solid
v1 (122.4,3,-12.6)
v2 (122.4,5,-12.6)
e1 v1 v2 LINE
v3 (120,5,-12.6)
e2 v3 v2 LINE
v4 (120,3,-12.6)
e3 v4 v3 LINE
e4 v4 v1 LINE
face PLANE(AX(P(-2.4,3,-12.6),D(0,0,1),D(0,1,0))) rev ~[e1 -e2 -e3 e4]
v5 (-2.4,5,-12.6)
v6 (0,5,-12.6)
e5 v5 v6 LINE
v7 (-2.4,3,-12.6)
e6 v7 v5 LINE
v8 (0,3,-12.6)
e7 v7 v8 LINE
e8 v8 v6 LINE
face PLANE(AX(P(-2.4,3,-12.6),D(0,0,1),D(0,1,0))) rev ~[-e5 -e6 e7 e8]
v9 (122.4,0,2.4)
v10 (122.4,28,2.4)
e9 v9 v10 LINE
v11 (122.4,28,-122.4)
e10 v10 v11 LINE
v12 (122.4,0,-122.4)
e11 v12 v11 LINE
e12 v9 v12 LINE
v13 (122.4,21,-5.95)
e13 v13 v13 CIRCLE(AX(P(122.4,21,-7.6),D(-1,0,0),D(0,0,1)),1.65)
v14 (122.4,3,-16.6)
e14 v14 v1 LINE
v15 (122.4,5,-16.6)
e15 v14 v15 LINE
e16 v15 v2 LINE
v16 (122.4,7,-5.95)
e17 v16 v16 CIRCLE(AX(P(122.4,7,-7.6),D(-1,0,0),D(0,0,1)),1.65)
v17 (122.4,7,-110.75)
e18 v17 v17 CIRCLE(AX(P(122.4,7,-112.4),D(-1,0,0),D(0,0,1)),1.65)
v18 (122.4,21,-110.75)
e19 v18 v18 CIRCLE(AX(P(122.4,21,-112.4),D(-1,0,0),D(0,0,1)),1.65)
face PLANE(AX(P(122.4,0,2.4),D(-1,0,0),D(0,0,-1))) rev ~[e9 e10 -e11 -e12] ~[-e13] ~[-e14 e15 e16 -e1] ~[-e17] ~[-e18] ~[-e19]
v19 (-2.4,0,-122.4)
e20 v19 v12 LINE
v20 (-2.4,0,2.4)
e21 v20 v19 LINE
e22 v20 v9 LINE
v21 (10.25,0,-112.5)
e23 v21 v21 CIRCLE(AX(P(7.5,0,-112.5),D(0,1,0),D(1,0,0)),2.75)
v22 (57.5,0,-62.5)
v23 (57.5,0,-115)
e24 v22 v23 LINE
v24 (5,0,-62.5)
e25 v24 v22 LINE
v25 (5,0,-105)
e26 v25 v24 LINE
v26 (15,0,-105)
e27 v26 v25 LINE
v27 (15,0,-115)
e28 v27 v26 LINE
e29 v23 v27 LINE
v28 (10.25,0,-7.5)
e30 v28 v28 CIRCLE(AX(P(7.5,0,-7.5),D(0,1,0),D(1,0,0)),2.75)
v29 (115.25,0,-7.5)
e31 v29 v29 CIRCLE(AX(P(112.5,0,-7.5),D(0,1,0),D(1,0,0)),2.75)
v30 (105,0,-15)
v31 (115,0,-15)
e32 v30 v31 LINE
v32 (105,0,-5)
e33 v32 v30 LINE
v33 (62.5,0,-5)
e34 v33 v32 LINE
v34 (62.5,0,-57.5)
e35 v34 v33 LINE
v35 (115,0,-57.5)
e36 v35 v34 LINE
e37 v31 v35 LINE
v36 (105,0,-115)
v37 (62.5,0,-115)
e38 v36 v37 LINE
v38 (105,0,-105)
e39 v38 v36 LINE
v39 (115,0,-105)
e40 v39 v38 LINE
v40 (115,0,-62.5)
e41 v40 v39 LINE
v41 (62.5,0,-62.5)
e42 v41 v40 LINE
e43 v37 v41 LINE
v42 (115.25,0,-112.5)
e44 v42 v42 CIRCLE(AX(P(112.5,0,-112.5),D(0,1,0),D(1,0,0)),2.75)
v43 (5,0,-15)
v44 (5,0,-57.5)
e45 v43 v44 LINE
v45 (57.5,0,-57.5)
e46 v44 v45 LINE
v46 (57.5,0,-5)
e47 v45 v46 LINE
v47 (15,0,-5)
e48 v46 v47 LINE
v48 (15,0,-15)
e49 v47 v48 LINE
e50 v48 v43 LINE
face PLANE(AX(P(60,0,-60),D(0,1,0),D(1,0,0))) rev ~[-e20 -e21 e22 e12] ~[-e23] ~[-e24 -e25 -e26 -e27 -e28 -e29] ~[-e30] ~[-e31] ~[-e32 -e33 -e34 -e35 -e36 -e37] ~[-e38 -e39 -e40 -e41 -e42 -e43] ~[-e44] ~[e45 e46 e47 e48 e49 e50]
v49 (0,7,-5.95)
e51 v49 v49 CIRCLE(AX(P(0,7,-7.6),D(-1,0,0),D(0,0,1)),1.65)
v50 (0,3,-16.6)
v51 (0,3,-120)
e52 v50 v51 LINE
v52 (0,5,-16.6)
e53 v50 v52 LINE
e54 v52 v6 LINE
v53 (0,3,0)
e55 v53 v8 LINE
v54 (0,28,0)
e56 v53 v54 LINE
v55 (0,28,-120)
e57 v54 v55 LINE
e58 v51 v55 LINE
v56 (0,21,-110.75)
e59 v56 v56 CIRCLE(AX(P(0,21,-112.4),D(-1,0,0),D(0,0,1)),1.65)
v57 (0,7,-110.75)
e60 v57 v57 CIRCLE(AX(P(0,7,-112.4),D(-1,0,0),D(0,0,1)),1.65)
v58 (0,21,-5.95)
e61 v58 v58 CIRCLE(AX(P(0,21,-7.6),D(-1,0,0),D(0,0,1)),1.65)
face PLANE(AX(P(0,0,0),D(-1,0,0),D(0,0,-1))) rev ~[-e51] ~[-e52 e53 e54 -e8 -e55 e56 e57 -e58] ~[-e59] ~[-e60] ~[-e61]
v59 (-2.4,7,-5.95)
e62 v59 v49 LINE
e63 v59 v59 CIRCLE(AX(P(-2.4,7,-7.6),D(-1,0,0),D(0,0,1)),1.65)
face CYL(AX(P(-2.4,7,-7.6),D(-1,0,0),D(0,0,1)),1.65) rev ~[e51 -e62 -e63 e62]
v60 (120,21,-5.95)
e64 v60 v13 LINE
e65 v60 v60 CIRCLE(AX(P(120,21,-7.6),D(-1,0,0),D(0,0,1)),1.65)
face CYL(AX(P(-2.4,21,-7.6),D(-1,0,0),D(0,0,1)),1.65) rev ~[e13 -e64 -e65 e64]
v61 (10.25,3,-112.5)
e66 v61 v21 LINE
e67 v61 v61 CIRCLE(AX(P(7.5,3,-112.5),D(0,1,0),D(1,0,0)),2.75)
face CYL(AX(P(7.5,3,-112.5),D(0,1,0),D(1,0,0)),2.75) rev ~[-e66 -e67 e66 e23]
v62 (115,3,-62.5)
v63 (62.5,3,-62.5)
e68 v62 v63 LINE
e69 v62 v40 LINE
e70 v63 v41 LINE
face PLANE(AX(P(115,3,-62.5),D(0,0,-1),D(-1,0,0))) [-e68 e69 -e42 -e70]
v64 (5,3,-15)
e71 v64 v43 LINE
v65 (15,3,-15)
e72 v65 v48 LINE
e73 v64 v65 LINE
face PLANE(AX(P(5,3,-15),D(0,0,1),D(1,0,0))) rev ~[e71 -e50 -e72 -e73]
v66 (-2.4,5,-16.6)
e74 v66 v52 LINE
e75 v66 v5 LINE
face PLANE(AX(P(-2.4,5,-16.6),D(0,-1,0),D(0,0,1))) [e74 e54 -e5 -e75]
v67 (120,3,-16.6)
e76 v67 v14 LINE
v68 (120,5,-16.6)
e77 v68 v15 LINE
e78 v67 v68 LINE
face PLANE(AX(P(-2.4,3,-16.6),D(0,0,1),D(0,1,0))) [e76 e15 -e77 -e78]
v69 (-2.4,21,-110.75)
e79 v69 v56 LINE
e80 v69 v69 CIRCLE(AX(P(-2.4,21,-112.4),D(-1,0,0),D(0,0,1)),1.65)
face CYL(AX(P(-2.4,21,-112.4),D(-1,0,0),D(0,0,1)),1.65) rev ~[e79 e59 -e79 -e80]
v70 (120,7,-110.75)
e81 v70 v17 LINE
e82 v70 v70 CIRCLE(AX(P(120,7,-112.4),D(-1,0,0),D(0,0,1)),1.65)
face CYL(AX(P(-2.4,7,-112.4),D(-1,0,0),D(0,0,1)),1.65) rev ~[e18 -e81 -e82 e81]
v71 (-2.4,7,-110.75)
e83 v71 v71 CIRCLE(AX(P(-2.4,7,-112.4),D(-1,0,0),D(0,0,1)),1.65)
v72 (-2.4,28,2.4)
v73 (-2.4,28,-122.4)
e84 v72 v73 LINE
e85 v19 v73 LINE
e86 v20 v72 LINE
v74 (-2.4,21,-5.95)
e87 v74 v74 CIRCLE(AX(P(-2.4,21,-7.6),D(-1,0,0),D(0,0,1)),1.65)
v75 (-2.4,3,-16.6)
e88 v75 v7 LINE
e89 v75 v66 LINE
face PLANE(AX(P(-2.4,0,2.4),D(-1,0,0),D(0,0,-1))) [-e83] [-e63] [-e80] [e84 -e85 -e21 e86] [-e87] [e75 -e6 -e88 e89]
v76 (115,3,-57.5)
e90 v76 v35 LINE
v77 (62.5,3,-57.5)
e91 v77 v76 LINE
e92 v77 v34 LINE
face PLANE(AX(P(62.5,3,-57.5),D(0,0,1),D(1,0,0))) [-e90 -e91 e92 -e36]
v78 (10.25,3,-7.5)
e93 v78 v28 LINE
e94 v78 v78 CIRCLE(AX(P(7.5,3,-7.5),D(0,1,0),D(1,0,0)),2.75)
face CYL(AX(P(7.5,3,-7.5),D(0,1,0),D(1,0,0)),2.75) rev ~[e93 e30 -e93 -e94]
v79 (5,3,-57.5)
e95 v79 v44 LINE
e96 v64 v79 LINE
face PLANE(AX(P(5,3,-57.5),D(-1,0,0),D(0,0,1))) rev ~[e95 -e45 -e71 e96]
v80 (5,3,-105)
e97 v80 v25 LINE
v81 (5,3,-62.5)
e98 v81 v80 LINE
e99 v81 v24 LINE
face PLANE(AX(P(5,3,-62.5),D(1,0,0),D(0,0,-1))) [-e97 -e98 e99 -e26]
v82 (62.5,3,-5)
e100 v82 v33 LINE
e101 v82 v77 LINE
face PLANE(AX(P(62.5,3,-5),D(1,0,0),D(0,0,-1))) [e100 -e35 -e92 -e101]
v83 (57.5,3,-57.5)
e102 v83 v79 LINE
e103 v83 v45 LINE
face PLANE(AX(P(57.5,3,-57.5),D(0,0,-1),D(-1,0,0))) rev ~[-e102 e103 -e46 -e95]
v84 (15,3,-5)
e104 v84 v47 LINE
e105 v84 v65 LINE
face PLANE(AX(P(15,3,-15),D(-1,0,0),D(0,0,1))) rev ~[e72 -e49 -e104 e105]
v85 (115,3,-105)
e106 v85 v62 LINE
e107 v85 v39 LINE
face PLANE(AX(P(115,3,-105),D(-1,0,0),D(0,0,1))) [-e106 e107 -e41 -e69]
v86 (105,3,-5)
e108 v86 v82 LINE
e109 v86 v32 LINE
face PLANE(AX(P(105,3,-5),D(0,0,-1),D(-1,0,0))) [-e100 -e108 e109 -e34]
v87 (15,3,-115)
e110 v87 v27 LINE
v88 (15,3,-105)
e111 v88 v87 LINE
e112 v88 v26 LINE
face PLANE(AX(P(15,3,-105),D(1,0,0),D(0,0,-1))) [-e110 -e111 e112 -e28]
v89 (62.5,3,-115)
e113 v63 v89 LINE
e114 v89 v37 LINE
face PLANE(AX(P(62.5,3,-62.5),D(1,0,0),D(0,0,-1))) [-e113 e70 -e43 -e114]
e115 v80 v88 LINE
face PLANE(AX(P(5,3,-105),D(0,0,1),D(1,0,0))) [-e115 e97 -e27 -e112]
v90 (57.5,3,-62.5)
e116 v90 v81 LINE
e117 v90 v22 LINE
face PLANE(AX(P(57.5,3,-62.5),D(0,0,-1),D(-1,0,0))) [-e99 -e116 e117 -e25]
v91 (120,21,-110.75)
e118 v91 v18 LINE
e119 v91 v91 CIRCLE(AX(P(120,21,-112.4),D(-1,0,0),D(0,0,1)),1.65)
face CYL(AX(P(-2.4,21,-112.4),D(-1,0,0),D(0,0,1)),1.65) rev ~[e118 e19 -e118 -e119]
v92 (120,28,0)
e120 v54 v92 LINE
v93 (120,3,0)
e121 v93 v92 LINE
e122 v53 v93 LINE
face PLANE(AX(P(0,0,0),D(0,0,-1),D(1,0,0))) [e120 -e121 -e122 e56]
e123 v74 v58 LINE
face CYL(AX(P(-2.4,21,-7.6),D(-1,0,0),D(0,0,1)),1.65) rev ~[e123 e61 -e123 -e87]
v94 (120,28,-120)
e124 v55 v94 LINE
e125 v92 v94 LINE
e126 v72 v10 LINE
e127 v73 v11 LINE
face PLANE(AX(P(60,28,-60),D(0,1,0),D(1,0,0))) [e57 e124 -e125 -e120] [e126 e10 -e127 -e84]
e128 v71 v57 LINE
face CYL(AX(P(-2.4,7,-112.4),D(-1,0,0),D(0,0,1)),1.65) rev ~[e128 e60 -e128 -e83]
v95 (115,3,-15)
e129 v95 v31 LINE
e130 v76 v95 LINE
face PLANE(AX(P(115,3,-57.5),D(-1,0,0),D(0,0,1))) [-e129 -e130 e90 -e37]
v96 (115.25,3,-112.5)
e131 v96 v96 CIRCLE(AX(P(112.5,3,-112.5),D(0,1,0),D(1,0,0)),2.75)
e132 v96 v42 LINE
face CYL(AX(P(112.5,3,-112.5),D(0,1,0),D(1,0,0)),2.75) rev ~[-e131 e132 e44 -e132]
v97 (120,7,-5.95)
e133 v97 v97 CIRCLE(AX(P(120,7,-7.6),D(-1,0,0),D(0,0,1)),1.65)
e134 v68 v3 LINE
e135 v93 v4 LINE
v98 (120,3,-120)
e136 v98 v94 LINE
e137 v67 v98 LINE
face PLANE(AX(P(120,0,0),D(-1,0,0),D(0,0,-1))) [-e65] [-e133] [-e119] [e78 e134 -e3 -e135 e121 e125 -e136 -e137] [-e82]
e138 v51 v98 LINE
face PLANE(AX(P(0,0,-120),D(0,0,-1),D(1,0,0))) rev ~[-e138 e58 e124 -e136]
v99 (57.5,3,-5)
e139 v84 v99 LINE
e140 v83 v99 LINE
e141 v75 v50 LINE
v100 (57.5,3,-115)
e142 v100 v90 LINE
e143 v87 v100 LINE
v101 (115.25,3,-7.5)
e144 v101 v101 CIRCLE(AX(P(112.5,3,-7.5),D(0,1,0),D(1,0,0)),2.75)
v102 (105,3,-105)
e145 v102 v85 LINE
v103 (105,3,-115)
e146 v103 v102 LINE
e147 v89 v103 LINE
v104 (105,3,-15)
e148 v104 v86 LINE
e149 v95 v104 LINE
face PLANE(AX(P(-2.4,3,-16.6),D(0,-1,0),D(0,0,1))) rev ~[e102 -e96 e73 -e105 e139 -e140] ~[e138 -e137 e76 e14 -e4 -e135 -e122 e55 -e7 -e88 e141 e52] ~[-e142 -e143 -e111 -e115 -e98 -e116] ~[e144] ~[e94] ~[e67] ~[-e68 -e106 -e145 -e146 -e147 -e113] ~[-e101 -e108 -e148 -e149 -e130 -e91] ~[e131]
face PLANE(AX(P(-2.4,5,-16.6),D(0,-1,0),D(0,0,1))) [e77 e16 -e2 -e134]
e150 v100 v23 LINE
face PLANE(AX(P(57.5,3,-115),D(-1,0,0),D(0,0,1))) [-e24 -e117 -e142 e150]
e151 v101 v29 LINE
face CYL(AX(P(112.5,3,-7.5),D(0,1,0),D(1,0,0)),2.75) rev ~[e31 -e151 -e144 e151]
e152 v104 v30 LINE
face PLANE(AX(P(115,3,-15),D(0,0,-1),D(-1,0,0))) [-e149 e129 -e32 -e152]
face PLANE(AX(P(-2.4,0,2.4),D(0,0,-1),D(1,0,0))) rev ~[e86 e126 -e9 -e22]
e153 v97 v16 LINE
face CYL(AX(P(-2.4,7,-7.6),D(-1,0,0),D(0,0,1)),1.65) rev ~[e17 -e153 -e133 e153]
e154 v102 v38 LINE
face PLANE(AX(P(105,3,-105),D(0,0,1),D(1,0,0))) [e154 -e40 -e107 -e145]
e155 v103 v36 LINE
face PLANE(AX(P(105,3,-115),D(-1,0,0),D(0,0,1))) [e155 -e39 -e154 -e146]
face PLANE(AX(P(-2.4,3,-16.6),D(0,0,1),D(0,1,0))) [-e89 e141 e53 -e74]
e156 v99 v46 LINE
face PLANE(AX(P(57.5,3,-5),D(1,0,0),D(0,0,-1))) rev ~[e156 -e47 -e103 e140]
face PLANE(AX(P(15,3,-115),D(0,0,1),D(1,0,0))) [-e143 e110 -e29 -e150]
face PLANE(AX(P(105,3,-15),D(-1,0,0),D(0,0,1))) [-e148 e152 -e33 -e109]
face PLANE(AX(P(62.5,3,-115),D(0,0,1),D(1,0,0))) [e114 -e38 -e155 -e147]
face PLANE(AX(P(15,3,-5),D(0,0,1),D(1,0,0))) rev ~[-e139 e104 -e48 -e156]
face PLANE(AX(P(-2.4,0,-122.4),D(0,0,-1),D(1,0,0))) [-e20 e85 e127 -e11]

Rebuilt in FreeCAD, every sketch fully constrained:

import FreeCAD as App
import Part
import Sketcher

V = App.Vector

doc = App.newDocument("Part")
body = doc.addObject("PartDesign::Body", "Body")

# Sketch on XZ plane
sketch1 = body.newObject("Sketcher::SketchObject", "Sketch")
sketch1.AttachmentSupport = (doc.getObject("XZ_Plane"), [""])
sketch1.MapMode = "FlatFace"
sketch1.addGeometry([
    Part.LineSegment(V(0, -120, 0), V(0, 0, 0)),
    Part.LineSegment(V(0, 0, 0), V(120, 0, 0)),
    Part.LineSegment(V(120, 0, 0), V(120, -120, 0)),
    Part.LineSegment(V(120, -120, 0), V(0, -120, 0)),
], False)
sketch1.addConstraint([
    Sketcher.Constraint("Coincident", 0, 2, 1, 1),
    Sketcher.Constraint("Coincident", 1, 2, 2, 1),
    Sketcher.Constraint("Coincident", 2, 2, 3, 1),
    Sketcher.Constraint("Coincident", 3, 2, 0, 1),
    Sketcher.Constraint("Vertical", 0),
    Sketcher.Constraint("Horizontal", 1),
    Sketcher.Constraint("Vertical", 2),
    Sketcher.Constraint("Horizontal", 3),
    Sketcher.Constraint("Coincident", 0, 2, -1, 1),
    Sketcher.Constraint("Equal", 3, 0),
    Sketcher.Constraint("DistanceX", 1, 1, 1, 2, 120.0),
])
pad1 = body.newObject("PartDesign::Pad", "Pad")
pad1.Profile = sketch1
pad1.Length = 3
pad1.Reversed = True

# Sketch on XZ plane
sketch2 = body.newObject("Sketcher::SketchObject", "Sketch001")
sketch2.AttachmentSupport = (doc.getObject("XZ_Plane"), [""])
sketch2.MapMode = "FlatFace"
sketch2.AttachmentOffset = App.Placement(V(0, 0, -3), App.Rotation())
sketch2.addGeometry([
    Part.LineSegment(V(57.5, -115, 0), V(15, -115, 0)),  # 0
    Part.LineSegment(V(15, -115, 0), V(15, -105, 0)),  # 1
    Part.LineSegment(V(15, -105, 0), V(5, -105, 0)),  # 2
    Part.LineSegment(V(5, -105, 0), V(5, -62.5, 0)),  # 3
    Part.LineSegment(V(5, -62.5, 0), V(57.5, -62.5, 0)),  # 4
    Part.LineSegment(V(57.5, -62.5, 0), V(57.5, -115, 0)),  # 5
], False)
sketch2.addConstraint([
    Sketcher.Constraint("Coincident", 0, 2, 1, 1),
    Sketcher.Constraint("Coincident", 1, 2, 2, 1),
    Sketcher.Constraint("Coincident", 2, 2, 3, 1),
    Sketcher.Constraint("Coincident", 3, 2, 4, 1),
    Sketcher.Constraint("Coincident", 4, 2, 5, 1),
    Sketcher.Constraint("Coincident", 5, 2, 0, 1),
    Sketcher.Constraint("Horizontal", 0),
    Sketcher.Constraint("Vertical", 1),
    Sketcher.Constraint("Horizontal", 2),
    Sketcher.Constraint("Vertical", 3),
    Sketcher.Constraint("Horizontal", 4),
    Sketcher.Constraint("Vertical", 5),
    Sketcher.Constraint("Equal", 2, 1),
    Sketcher.Constraint("Equal", 0, 3),
    Sketcher.Constraint("DistanceX", 2, 2, 2, 1, 10.0),
    Sketcher.Constraint("DistanceX", 0, 2, 0, 1, 42.5),
    Sketcher.Constraint("DistanceX", -1, 1, 0, 2, 15.0),
    Sketcher.Constraint("DistanceY", 0, 2, -1, 1, 115.0),
])
pocket1 = body.newObject("PartDesign::Pocket", "Pocket")
pocket1.Profile = sketch2
pocket1.Type = "UpToFirst"
pocket1.Reversed = True

# Sketch on XZ plane
sketch3 = body.newObject("Sketcher::SketchObject", "Sketch002")
sketch3.AttachmentSupport = (doc.getObject("XZ_Plane"), [""])
sketch3.MapMode = "FlatFace"
sketch3.AttachmentOffset = App.Placement(V(0, 0, -3), App.Rotation())
sketch3.addGeometry([
    Part.LineSegment(V(62.5, -57.5, 0), V(62.5, -5, 0)),  # 0
    Part.LineSegment(V(62.5, -5, 0), V(105, -5, 0)),  # 1
    Part.LineSegment(V(105, -5, 0), V(105, -15, 0)),  # 2
    Part.LineSegment(V(105, -15, 0), V(115, -15, 0)),  # 3
    Part.LineSegment(V(115, -15, 0), V(115, -57.5, 0)),  # 4
    Part.LineSegment(V(115, -57.5, 0), V(62.5, -57.5, 0)),  # 5
], False)
sketch3.addConstraint([
    Sketcher.Constraint("Coincident", 0, 2, 1, 1),
    Sketcher.Constraint("Coincident", 1, 2, 2, 1),
    Sketcher.Constraint("Coincident", 2, 2, 3, 1),
    Sketcher.Constraint("Coincident", 3, 2, 4, 1),
    Sketcher.Constraint("Coincident", 4, 2, 5, 1),
    Sketcher.Constraint("Coincident", 5, 2, 0, 1),
    Sketcher.Constraint("Vertical", 0),
    Sketcher.Constraint("Horizontal", 1),
    Sketcher.Constraint("Vertical", 2),
    Sketcher.Constraint("Horizontal", 3),
    Sketcher.Constraint("Vertical", 4),
    Sketcher.Constraint("Horizontal", 5),
    Sketcher.Constraint("Equal", 5, 0),
    Sketcher.Constraint("Equal", 3, 2),
    Sketcher.Constraint("DistanceX", 3, 1, 3, 2, 10.0),
    Sketcher.Constraint("DistanceX", 1, 1, 1, 2, 42.5),
    Sketcher.Constraint("DistanceY", 0, 2, -1, 1, 5.0),
    Sketcher.Constraint("DistanceX", -1, 1, 1, 2, 105.0),
])
pocket2 = body.newObject("PartDesign::Pocket", "Pocket001")
pocket2.Profile = sketch3
pocket2.Type = "UpToFirst"
pocket2.Reversed = True

# Sketch on XZ plane
sketch4 = body.newObject("Sketcher::SketchObject", "Sketch003")
sketch4.AttachmentSupport = (doc.getObject("XZ_Plane"), [""])
sketch4.MapMode = "FlatFace"
sketch4.AttachmentOffset = App.Placement(V(0, 0, -3), App.Rotation())
sketch4.addGeometry([
    Part.LineSegment(V(15, -5, 0), V(57.5, -5, 0)),  # 0
    Part.LineSegment(V(57.5, -5, 0), V(57.5, -57.5, 0)),  # 1
    Part.LineSegment(V(57.5, -57.5, 0), V(5, -57.5, 0)),  # 2
    Part.LineSegment(V(5, -57.5, 0), V(5, -15, 0)),  # 3
    Part.LineSegment(V(5, -15, 0), V(15, -15, 0)),  # 4
    Part.LineSegment(V(15, -15, 0), V(15, -5, 0)),  # 5
], False)
sketch4.addConstraint([
    Sketcher.Constraint("Coincident", 0, 2, 1, 1),
    Sketcher.Constraint("Coincident", 1, 2, 2, 1),
    Sketcher.Constraint("Coincident", 2, 2, 3, 1),
    Sketcher.Constraint("Coincident", 3, 2, 4, 1),
    Sketcher.Constraint("Coincident", 4, 2, 5, 1),
    Sketcher.Constraint("Coincident", 5, 2, 0, 1),
    Sketcher.Constraint("Horizontal", 0),
    Sketcher.Constraint("Vertical", 1),
    Sketcher.Constraint("Horizontal", 2),
    Sketcher.Constraint("Vertical", 3),
    Sketcher.Constraint("Horizontal", 4),
    Sketcher.Constraint("Vertical", 5),
    Sketcher.Constraint("Equal", 2, 1),
    Sketcher.Constraint("Equal", 0, 3),
    Sketcher.Constraint("DistanceX", 4, 1, 4, 2, 10.0),
    Sketcher.Constraint("DistanceX", 0, 1, 0, 2, 42.5),
    Sketcher.Constraint("DistanceY", 0, 2, -1, 1, 5.0),
    Sketcher.Constraint("DistanceX", -1, 1, 2, 2, 5.0),
])
pocket3 = body.newObject("PartDesign::Pocket", "Pocket002")
pocket3.Profile = sketch4
pocket3.Type = "UpToFirst"
pocket3.Reversed = True

# Sketch on XZ plane
sketch5 = body.newObject("Sketcher::SketchObject", "Sketch004")
sketch5.AttachmentSupport = (doc.getObject("XZ_Plane"), [""])
sketch5.MapMode = "FlatFace"
sketch5.AttachmentOffset = App.Placement(V(0, 0, -3), App.Rotation())
sketch5.addGeometry([
    Part.LineSegment(V(62.5, -62.5, 0), V(115, -62.5, 0)),  # 0
    Part.LineSegment(V(115, -62.5, 0), V(115, -105, 0)),  # 1
    Part.LineSegment(V(115, -105, 0), V(105, -105, 0)),  # 2
    Part.LineSegment(V(105, -105, 0), V(105, -115, 0)),  # 3
    Part.LineSegment(V(105, -115, 0), V(62.5, -115, 0)),  # 4
    Part.LineSegment(V(62.5, -115, 0), V(62.5, -62.5, 0)),  # 5
], False)
sketch5.addConstraint([
    Sketcher.Constraint("Coincident", 0, 2, 1, 1),
    Sketcher.Constraint("Coincident", 1, 2, 2, 1),
    Sketcher.Constraint("Coincident", 2, 2, 3, 1),
    Sketcher.Constraint("Coincident", 3, 2, 4, 1),
    Sketcher.Constraint("Coincident", 4, 2, 5, 1),
    Sketcher.Constraint("Coincident", 5, 2, 0, 1),
    Sketcher.Constraint("Horizontal", 0),
    Sketcher.Constraint("Vertical", 1),
    Sketcher.Constraint("Horizontal", 2),
    Sketcher.Constraint("Vertical", 3),
    Sketcher.Constraint("Horizontal", 4),
    Sketcher.Constraint("Vertical", 5),
    Sketcher.Constraint("Equal", 4, 1),
    Sketcher.Constraint("Equal", 2, 3),
    Sketcher.Constraint("DistanceX", 2, 2, 2, 1, 10.0),
    Sketcher.Constraint("DistanceX", 0, 1, 0, 2, 52.5),
    Sketcher.Constraint("DistanceX", -1, 1, 0, 2, 115.0),
    Sketcher.Constraint("DistanceY", 1, 2, -1, 1, 105.0),
])
pocket4 = body.newObject("PartDesign::Pocket", "Pocket003")
pocket4.Profile = sketch5
pocket4.Type = "UpToFirst"
pocket4.Reversed = True

# Sketch on XZ plane
sketch6 = body.newObject("Sketcher::SketchObject", "Sketch005")
sketch6.AttachmentSupport = (doc.getObject("XZ_Plane"), [""])
sketch6.MapMode = "FlatFace"
sketch6.AttachmentOffset = App.Placement(V(0, 0, -3), App.Rotation())
sketch6.addGeometry([
    Part.LineSegment(V(57.5, -115, 0), V(15, -115, 0)),  # 0
    Part.LineSegment(V(15, -115, 0), V(15, -105, 0)),  # 1
    Part.LineSegment(V(15, -105, 0), V(5, -105, 0)),  # 2
    Part.LineSegment(V(5, -105, 0), V(5, -62.5, 0)),  # 3
    Part.LineSegment(V(5, -62.5, 0), V(57.5, -62.5, 0)),  # 4
    Part.LineSegment(V(57.5, -62.5, 0), V(57.5, -115, 0)),  # 5
    Part.LineSegment(V(62.5, -57.5, 0), V(62.5, -5, 0)),  # 6
    Part.LineSegment(V(62.5, -5, 0), V(105, -5, 0)),  # 7
    Part.LineSegment(V(105, -5, 0), V(105, -15, 0)),  # 8
    Part.LineSegment(V(105, -15, 0), V(115, -15, 0)),  # 9
    Part.LineSegment(V(115, -15, 0), V(115, -57.5, 0)),  # 10
    Part.LineSegment(V(115, -57.5, 0), V(62.5, -57.5, 0)),  # 11
    Part.LineSegment(V(15, -5, 0), V(57.5, -5, 0)),  # 12
    Part.LineSegment(V(57.5, -5, 0), V(57.5, -57.5, 0)),  # 13
    Part.LineSegment(V(57.5, -57.5, 0), V(5, -57.5, 0)),  # 14
    Part.LineSegment(V(5, -57.5, 0), V(5, -15, 0)),  # 15
    Part.LineSegment(V(5, -15, 0), V(15, -15, 0)),  # 16
    Part.LineSegment(V(15, -15, 0), V(15, -5, 0)),  # 17
    Part.LineSegment(V(62.5, -62.5, 0), V(115, -62.5, 0)),  # 18
    Part.LineSegment(V(115, -62.5, 0), V(115, -105, 0)),  # 19
    Part.LineSegment(V(115, -105, 0), V(105, -105, 0)),  # 20
    Part.LineSegment(V(105, -105, 0), V(105, -115, 0)),  # 21
    Part.LineSegment(V(105, -115, 0), V(62.5, -115, 0)),  # 22
    Part.LineSegment(V(62.5, -115, 0), V(62.5, -62.5, 0)),  # 23
], False)
sketch6.addConstraint([
    Sketcher.Constraint("Coincident", 0, 2, 1, 1),
    Sketcher.Constraint("Coincident", 1, 2, 2, 1),
    Sketcher.Constraint("Coincident", 2, 2, 3, 1),
    Sketcher.Constraint("Coincident", 3, 2, 4, 1),
    Sketcher.Constraint("Coincident", 4, 2, 5, 1),
    Sketcher.Constraint("Coincident", 5, 2, 0, 1),
    Sketcher.Constraint("Coincident", 6, 2, 7, 1),
    Sketcher.Constraint("Coincident", 7, 2, 8, 1),
    Sketcher.Constraint("Coincident", 8, 2, 9, 1),
    Sketcher.Constraint("Coincident", 9, 2, 10, 1),
    Sketcher.Constraint("Coincident", 10, 2, 11, 1),
    Sketcher.Constraint("Coincident", 11, 2, 6, 1),
    Sketcher.Constraint("Coincident", 12, 2, 13, 1),
    Sketcher.Constraint("Coincident", 13, 2, 14, 1),
    Sketcher.Constraint("Coincident", 14, 2, 15, 1),
    Sketcher.Constraint("Coincident", 15, 2, 16, 1),
    Sketcher.Constraint("Coincident", 16, 2, 17, 1),
    Sketcher.Constraint("Coincident", 17, 2, 12, 1),
    Sketcher.Constraint("Coincident", 18, 2, 19, 1),
    Sketcher.Constraint("Coincident", 19, 2, 20, 1),
    Sketcher.Constraint("Coincident", 20, 2, 21, 1),
    Sketcher.Constraint("Coincident", 21, 2, 22, 1),
    Sketcher.Constraint("Coincident", 22, 2, 23, 1),
    Sketcher.Constraint("Coincident", 23, 2, 18, 1),
    Sketcher.Constraint("Horizontal", 0),
    Sketcher.Constraint("Vertical", 1),
    Sketcher.Constraint("Horizontal", 2),
    Sketcher.Constraint("Vertical", 3),
    Sketcher.Constraint("Horizontal", 4),
    Sketcher.Constraint("Vertical", 5),
    Sketcher.Constraint("Vertical", 6),
    Sketcher.Constraint("Horizontal", 7),
    Sketcher.Constraint("Vertical", 8),
    Sketcher.Constraint("Horizontal", 9),
    Sketcher.Constraint("Vertical", 10),
    Sketcher.Constraint("Horizontal", 11),
    Sketcher.Constraint("Horizontal", 12),
    Sketcher.Constraint("Vertical", 13),
    Sketcher.Constraint("Horizontal", 14),
    Sketcher.Constraint("Vertical", 15),
    Sketcher.Constraint("Horizontal", 16),
    Sketcher.Constraint("Vertical", 17),
    Sketcher.Constraint("Horizontal", 18),
    Sketcher.Constraint("Vertical", 19),
    Sketcher.Constraint("Horizontal", 20),
    Sketcher.Constraint("Vertical", 21),
    Sketcher.Constraint("Horizontal", 22),
    Sketcher.Constraint("Vertical", 23),
    Sketcher.Constraint("Horizontal", 7, 2, 12, 2),
    Sketcher.Constraint("Horizontal", 11, 2, 13, 2),
    Sketcher.Constraint("Horizontal", 9, 2, 15, 2),
    Sketcher.Constraint("Horizontal", 4, 2, 18, 2),
    Sketcher.Constraint("Horizontal", 2, 2, 19, 2),
    Sketcher.Constraint("Horizontal", 5, 2, 21, 2),
    Sketcher.Constraint("Vertical", 5, 2, 12, 2),
    Sketcher.Constraint("Vertical", 3, 2, 14, 2),
    Sketcher.Constraint("Vertical", 1, 2, 16, 2),
    Sketcher.Constraint("Vertical", 10, 2, 18, 2),
    Sketcher.Constraint("Vertical", 8, 2, 20, 2),
    Sketcher.Constraint("Vertical", 11, 2, 22, 2),
    Sketcher.Constraint("Equal", 0, 7),
    Sketcher.Constraint("Equal", 2, 9),
    Sketcher.Constraint("Equal", 20, 1),
    Sketcher.Constraint("Equal", 22, 3),
    Sketcher.Constraint("Equal", 5, 6),
    Sketcher.Constraint("Equal", 1, 8),
    Sketcher.Constraint("DistanceX", 2, 2, 2, 1, 10.0),
    Sketcher.Constraint("DistanceX", 0, 2, 0, 1, 42.5),
    Sketcher.Constraint("DistanceX", -1, 1, 0, 2, 15.0),
    Sketcher.Constraint("DistanceY", 0, 2, -1, 1, 115.0),
    Sketcher.Constraint("DistanceY", 6, 2, -1, 1, 5.0),
    Sketcher.Constraint("DistanceX", -1, 1, 7, 2, 105.0),
])
pocket5 = body.newObject("PartDesign::Pocket", "Pocket004")
pocket5.Profile = sketch6
pocket5.Length = 1

# Sketch on XZ plane
sketch7 = body.newObject("Sketcher::SketchObject", "Sketch006")
sketch7.AttachmentSupport = (doc.getObject("XZ_Plane"), [""])
sketch7.MapMode = "FlatFace"
sketch7.AttachmentOffset = App.Placement(V(0, 0, -3), App.Rotation())
sketch7.addGeometry(Part.Circle(V(7.5, -112.5, 0), V(0, 0, 1), 2.75), False)
sketch7.addConstraint([
    Sketcher.Constraint("Diameter", 0, 5.5),
    Sketcher.Constraint("DistanceX", -1, 1, 0, 3, 7.5),
    Sketcher.Constraint("DistanceY", 0, 3, -1, 1, 112.5),
])
pocket6 = body.newObject("PartDesign::Pocket", "Pocket005")
pocket6.Profile = sketch7
pocket6.Type = "UpToFirst"
pocket6.Reversed = True

# Sketch on XZ plane
sketch8 = body.newObject("Sketcher::SketchObject", "Sketch007")
sketch8.AttachmentSupport = (doc.getObject("XZ_Plane"), [""])
sketch8.MapMode = "FlatFace"
sketch8.AttachmentOffset = App.Placement(V(0, 0, -3), App.Rotation())
sketch8.addGeometry(Part.Circle(V(112.5, -112.5, 0), V(0, 0, 1), 2.75), False)
sketch8.addConstraint([
    Sketcher.Constraint("Diameter", 0, 5.5),
    Sketcher.Constraint("DistanceX", -1, 1, 0, 3, 112.5),
    Sketcher.Constraint("DistanceY", 0, 3, -1, 1, 112.5),
])
pocket7 = body.newObject("PartDesign::Pocket", "Pocket006")
pocket7.Profile = sketch8
pocket7.Type = "UpToFirst"
pocket7.Reversed = True

# Sketch on XZ plane
sketch9 = body.newObject("Sketcher::SketchObject", "Sketch008")
sketch9.AttachmentSupport = (doc.getObject("XZ_Plane"), [""])
sketch9.MapMode = "FlatFace"
sketch9.AttachmentOffset = App.Placement(V(0, 0, -3), App.Rotation())
sketch9.addGeometry(Part.Circle(V(112.5, -7.5, 0), V(0, 0, 1), 2.75), False)
sketch9.addConstraint([
    Sketcher.Constraint("Diameter", 0, 5.5),
    Sketcher.Constraint("DistanceX", -1, 1, 0, 3, 112.5),
    Sketcher.Constraint("DistanceY", 0, 3, -1, 1, 7.5),
])
pocket8 = body.newObject("PartDesign::Pocket", "Pocket007")
pocket8.Profile = sketch9
pocket8.Type = "UpToFirst"
pocket8.Reversed = True

# Sketch on XZ plane
sketch10 = body.newObject("Sketcher::SketchObject", "Sketch009")
sketch10.AttachmentSupport = (doc.getObject("XZ_Plane"), [""])
sketch10.MapMode = "FlatFace"
sketch10.AttachmentOffset = App.Placement(V(0, 0, -3), App.Rotation())
sketch10.addGeometry(Part.Circle(V(7.5, -7.5, 0), V(0, 0, 1), 2.75), False)
sketch10.addConstraint([
    Sketcher.Constraint("Diameter", 0, 5.5),
    Sketcher.Constraint("DistanceX", -1, 1, 0, 3, 7.5),
    Sketcher.Constraint("DistanceY", 0, 3, -1, 1, 7.5),
])
pocket9 = body.newObject("PartDesign::Pocket", "Pocket008")
pocket9.Profile = sketch10
pocket9.Type = "UpToFirst"
pocket9.Reversed = True

# Sketch on XZ plane
sketch11 = body.newObject("Sketcher::SketchObject", "Sketch010")
sketch11.AttachmentSupport = (doc.getObject("XZ_Plane"), [""])
sketch11.MapMode = "FlatFace"
sketch11.addGeometry([
    Part.LineSegment(V(-2.4, -122.4, 0), V(-2.4, 2.4, 0)),  # 0
    Part.LineSegment(V(-2.4, 2.4, 0), V(122.4, 2.4, 0)),  # 1
    Part.LineSegment(V(122.4, 2.4, 0), V(122.4, -122.4, 0)),  # 2
    Part.LineSegment(V(122.4, -122.4, 0), V(-2.4, -122.4, 0)),  # 3
    Part.LineSegment(V(120, 0, 0), V(0, 0, 0)),  # 4
    Part.LineSegment(V(0, 0, 0), V(0, -120, 0)),  # 5
    Part.LineSegment(V(0, -120, 0), V(120, -120, 0)),  # 6
    Part.LineSegment(V(120, -120, 0), V(120, 0, 0)),  # 7
], False)
sketch11.addConstraint([
    Sketcher.Constraint("Coincident", 0, 2, 1, 1),
    Sketcher.Constraint("Coincident", 1, 2, 2, 1),
    Sketcher.Constraint("Coincident", 2, 2, 3, 1),
    Sketcher.Constraint("Coincident", 3, 2, 0, 1),
    Sketcher.Constraint("Coincident", 4, 2, 5, 1),
    Sketcher.Constraint("Coincident", 5, 2, 6, 1),
    Sketcher.Constraint("Coincident", 6, 2, 7, 1),
    Sketcher.Constraint("Coincident", 7, 2, 4, 1),
    Sketcher.Constraint("Vertical", 0),
    Sketcher.Constraint("Horizontal", 1),
    Sketcher.Constraint("Vertical", 2),
    Sketcher.Constraint("Horizontal", 3),
    Sketcher.Constraint("Horizontal", 4),
    Sketcher.Constraint("Vertical", 5),
    Sketcher.Constraint("Horizontal", 6),
    Sketcher.Constraint("Vertical", 7),
    Sketcher.Constraint("Coincident", 4, 2, -1, 1),
    Sketcher.Constraint("Equal", 3, 0),
    Sketcher.Constraint("Equal", 6, 5),
    Sketcher.Constraint("DistanceX", 4, 2, 4, 1, 120.0),
    Sketcher.Constraint("DistanceX", 1, 1, 1, 2, 124.8),
    Sketcher.Constraint("DistanceX", 0, 2, -1, 1, 2.4),
    Sketcher.Constraint("DistanceY", -1, 1, 0, 2, 2.4),
])
pad2 = body.newObject("PartDesign::Pad", "Pad001")
pad2.Profile = sketch11
pad2.Length = 28
pad2.Reversed = True

# Sketch on YZ plane
sketch12 = body.newObject("Sketcher::SketchObject", "Sketch011")
sketch12.AttachmentSupport = (doc.getObject("YZ_Plane"), [""])
sketch12.MapMode = "FlatFace"
sketch12.AttachmentOffset = App.Placement(V(0, 0, -2.4), App.Rotation())
sketch12.addGeometry([
    Part.Circle(V(21, -112.4, 0), V(0, 0, 1), 1.65),
    Part.Circle(V(7, -112.4, 0), V(0, 0, 1), 1.65),
    Part.Circle(V(7, -7.6, 0), V(0, 0, 1), 1.65),
    Part.Circle(V(21, -7.6, 0), V(0, 0, 1), 1.65),
], False)
sketch12.addConstraint([
    Sketcher.Constraint("Equal", 0, 1),
    Sketcher.Constraint("Equal", 1, 2),
    Sketcher.Constraint("Equal", 2, 3),
    Sketcher.Constraint("Horizontal", 0, 3, 1, 3),
    Sketcher.Constraint("Horizontal", 2, 3, 3, 3),
    Sketcher.Constraint("Vertical", 1, 3, 2, 3),
    Sketcher.Constraint("Vertical", 0, 3, 3, 3),
    Sketcher.Constraint("Diameter", 0, 3.3),
    Sketcher.Constraint("DistanceX", -1, 1, 0, 3, 21.0),
    Sketcher.Constraint("DistanceX", -1, 1, 1, 3, 7.0),
    Sketcher.Constraint("DistanceY", 0, 3, -1, 1, 112.4),
    Sketcher.Constraint("DistanceY", 2, 3, -1, 1, 7.6),
])
pocket10 = body.newObject("PartDesign::Pocket", "Pocket009")
pocket10.Profile = sketch12
pocket10.Type = "ThroughAll"
pocket10.Reversed = True

# Sketch on YZ plane
sketch13 = body.newObject("Sketcher::SketchObject", "Sketch012")
sketch13.AttachmentSupport = (doc.getObject("YZ_Plane"), [""])
sketch13.MapMode = "FlatFace"
sketch13.AttachmentOffset = App.Placement(V(0, 0, -2.4), App.Rotation())
sketch13.addGeometry([
    Part.LineSegment(V(5, -16.6, 0), V(3, -16.6, 0)),
    Part.LineSegment(V(3, -16.6, 0), V(3, -12.6, 0)),
    Part.LineSegment(V(3, -12.6, 0), V(5, -12.6, 0)),
    Part.LineSegment(V(5, -12.6, 0), V(5, -16.6, 0)),
], False)
sketch13.addConstraint([
    Sketcher.Constraint("Coincident", 0, 2, 1, 1),
    Sketcher.Constraint("Coincident", 1, 2, 2, 1),
    Sketcher.Constraint("Coincident", 2, 2, 3, 1),
    Sketcher.Constraint("Coincident", 3, 2, 0, 1),
    Sketcher.Constraint("Horizontal", 0),
    Sketcher.Constraint("Vertical", 1),
    Sketcher.Constraint("Horizontal", 2),
    Sketcher.Constraint("Vertical", 3),
    Sketcher.Constraint("DistanceX", 0, 2, 0, 1, 2.0),
    Sketcher.Constraint("DistanceY", 1, 1, 1, 2, 4.0),
    Sketcher.Constraint("DistanceX", -1, 1, 0, 2, 3.0),
    Sketcher.Constraint("DistanceY", 0, 2, -1, 1, 16.6),
])
pocket11 = body.newObject("PartDesign::Pocket", "Pocket010")
pocket11.Profile = sketch13
pocket11.Type = "ThroughAll"
pocket11.Reversed = True

doc.recompute()
